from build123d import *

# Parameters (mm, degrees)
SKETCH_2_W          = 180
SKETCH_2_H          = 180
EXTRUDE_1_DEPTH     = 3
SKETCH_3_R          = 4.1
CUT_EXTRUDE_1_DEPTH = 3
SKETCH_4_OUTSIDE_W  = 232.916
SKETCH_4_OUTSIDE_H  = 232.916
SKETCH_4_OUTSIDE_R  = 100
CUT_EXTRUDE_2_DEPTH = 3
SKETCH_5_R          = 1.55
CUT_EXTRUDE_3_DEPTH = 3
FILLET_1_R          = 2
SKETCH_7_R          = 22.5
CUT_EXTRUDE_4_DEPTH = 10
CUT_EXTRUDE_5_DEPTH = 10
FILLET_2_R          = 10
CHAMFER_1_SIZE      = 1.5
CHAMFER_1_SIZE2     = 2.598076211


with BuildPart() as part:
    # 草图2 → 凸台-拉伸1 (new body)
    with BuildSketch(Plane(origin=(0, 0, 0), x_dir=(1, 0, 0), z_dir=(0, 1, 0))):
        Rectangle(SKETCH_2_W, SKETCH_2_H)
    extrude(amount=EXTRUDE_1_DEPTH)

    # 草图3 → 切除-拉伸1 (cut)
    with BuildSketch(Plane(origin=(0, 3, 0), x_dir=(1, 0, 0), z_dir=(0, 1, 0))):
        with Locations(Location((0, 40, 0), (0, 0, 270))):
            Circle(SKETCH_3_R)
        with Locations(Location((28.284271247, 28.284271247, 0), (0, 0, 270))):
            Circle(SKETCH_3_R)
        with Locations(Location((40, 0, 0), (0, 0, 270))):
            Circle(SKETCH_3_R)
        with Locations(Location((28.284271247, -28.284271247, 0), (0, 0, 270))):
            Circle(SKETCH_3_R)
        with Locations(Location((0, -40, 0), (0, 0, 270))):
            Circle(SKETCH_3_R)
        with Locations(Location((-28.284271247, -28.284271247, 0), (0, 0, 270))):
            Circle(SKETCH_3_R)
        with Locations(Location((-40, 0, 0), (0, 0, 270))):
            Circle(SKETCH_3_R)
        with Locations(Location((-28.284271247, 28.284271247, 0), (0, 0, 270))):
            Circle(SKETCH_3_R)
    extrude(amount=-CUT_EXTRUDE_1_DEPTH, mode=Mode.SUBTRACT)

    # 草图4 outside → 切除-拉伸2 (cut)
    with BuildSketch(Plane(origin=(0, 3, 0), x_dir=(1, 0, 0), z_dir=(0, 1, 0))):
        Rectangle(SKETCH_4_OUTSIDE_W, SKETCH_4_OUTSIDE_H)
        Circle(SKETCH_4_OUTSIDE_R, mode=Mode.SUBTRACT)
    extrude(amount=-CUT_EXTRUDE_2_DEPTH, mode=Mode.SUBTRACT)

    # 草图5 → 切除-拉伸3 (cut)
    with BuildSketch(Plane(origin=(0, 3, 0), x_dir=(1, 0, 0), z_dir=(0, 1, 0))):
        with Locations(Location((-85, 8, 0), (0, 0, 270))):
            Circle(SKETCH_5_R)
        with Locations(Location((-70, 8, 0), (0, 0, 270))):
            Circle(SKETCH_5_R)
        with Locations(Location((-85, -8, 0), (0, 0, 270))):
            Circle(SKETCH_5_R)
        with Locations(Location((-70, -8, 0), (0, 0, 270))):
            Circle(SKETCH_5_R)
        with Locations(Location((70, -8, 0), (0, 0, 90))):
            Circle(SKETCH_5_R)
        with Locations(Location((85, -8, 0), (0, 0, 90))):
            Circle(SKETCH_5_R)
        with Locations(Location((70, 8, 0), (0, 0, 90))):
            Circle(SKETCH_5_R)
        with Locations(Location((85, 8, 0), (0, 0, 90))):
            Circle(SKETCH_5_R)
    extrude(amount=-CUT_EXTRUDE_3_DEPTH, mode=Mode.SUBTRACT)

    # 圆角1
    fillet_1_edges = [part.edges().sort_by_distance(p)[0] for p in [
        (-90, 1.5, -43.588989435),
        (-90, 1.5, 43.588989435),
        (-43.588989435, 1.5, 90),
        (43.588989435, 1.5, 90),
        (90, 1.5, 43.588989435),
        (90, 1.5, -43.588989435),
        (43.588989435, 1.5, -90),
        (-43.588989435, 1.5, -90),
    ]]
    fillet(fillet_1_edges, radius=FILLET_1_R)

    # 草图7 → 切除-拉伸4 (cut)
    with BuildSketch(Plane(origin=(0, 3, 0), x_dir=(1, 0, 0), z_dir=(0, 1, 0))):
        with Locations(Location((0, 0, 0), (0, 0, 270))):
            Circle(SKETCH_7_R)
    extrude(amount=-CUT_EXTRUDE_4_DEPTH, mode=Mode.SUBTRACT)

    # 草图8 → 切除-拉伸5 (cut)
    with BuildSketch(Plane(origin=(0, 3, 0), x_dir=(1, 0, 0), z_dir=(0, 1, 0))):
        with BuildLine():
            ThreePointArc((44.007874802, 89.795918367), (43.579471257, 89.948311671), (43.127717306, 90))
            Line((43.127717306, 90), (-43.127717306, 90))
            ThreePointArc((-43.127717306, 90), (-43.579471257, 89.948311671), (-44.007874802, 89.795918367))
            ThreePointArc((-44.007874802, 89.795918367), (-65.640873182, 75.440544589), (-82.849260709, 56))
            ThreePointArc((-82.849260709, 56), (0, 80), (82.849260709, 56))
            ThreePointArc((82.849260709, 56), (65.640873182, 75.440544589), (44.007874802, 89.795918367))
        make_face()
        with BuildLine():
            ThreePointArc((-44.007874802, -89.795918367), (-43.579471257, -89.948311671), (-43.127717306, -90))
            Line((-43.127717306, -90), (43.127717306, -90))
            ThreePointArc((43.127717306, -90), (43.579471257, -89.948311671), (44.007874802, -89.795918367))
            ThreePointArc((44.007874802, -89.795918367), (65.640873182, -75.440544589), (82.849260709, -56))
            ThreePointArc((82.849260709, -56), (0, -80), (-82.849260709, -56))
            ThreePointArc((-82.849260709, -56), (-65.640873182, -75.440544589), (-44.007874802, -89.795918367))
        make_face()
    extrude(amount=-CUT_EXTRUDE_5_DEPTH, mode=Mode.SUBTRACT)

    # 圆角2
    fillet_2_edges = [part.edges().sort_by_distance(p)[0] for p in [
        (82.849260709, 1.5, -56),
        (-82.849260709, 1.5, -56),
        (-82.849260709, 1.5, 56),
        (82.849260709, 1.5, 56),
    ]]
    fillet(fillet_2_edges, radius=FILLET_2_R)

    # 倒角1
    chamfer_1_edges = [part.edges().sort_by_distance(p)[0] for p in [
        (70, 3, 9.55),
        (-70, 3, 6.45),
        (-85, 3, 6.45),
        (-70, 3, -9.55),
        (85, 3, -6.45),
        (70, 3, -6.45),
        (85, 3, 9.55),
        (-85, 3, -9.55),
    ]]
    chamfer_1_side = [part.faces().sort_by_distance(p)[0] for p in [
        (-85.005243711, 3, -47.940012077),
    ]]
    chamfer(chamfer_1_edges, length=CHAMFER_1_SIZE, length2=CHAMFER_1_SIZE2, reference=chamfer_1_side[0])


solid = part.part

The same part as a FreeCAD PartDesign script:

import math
import FreeCAD as App
import Part
import Sketcher

V = App.Vector
Q = App.Units.Quantity


def edges_at(feature, points):
    """Names of the edges that pass closest to the given points."""
    edges = feature.Shape.Edges
    near = lambda p: min(range(len(edges)), key=lambda i: edges[i].distToShape(Part.Vertex(*p))[0])
    return sorted({f"Edge{near(p) + 1}" for p in points})

doc = App.newDocument("Part")
body = doc.addObject("PartDesign::Body", "Body")

# Sketch on XZ plane
sketch1 = body.newObject("Sketcher::SketchObject", "Sketch")
sketch1.AttachmentSupport = (doc.getObject("XZ_Plane"), [""])
sketch1.MapMode = "FlatFace"
sketch1.addGeometry([
    Part.LineSegment(V(-90, -90, 0), V(-90, 90, 0)),
    Part.LineSegment(V(-90, 90, 0), V(90, 90, 0)),
    Part.LineSegment(V(90, 90, 0), V(90, -90, 0)),
    Part.LineSegment(V(90, -90, 0), V(-90, -90, 0)),
], False)
sketch1.addConstraint([
    Sketcher.Constraint("Coincident", 0, 2, 1, 1),
    Sketcher.Constraint("Coincident", 1, 2, 2, 1),
    Sketcher.Constraint("Coincident", 2, 2, 3, 1),
    Sketcher.Constraint("Coincident", 3, 2, 0, 1),
    Sketcher.Constraint("Vertical", 0),
    Sketcher.Constraint("Horizontal", 1),
    Sketcher.Constraint("Vertical", 2),
    Sketcher.Constraint("Horizontal", 3),
    Sketcher.Constraint("Symmetric", 0, 2, 2, 2, -1, 1),
    Sketcher.Constraint("Equal", 3, 0),
    Sketcher.Constraint("DistanceX", 1, 1, 1, 2, Q("180 mm")),
])
pad1 = body.newObject("PartDesign::Pad", "Pad")
pad1.Profile = sketch1
pad1.Length = 3
pad1.Reversed = True

# Sketch on XZ plane
sketch2 = body.newObject("Sketcher::SketchObject", "Sketch001")
sketch2.AttachmentSupport = (doc.getObject("XZ_Plane"), [""])
sketch2.MapMode = "FlatFace"
sketch2.AttachmentOffset = App.Placement(V(0, 0, -3), App.Rotation())
sketch2.addGeometry([
    Part.Circle(V(0, -40, 0), V(0, 0, 1), 4.1),  # 0
    Part.Circle(V(28.3, -28.3, 0), V(0, 0, 1), 4.1),  # 1
    Part.Circle(V(40, 0, 0), V(0, 0, 1), 4.1),  # 2
    Part.Circle(V(28.3, 28.3, 0), V(0, 0, 1), 4.1),  # 3
    Part.Circle(V(0, 40, 0), V(0, 0, 1), 4.1),  # 4
    Part.Circle(V(-28.3, 28.3, 0), V(0, 0, 1), 4.1),  # 5
    Part.Circle(V(-40, 0, 0), V(0, 0, 1), 4.1),  # 6
    Part.Circle(V(-28.3, -28.3, 0), V(0, 0, 1), 4.1),  # 7
], False)
sketch2.addConstraint([
    Sketcher.Constraint("Equal", 0, 1),
    Sketcher.Constraint("Equal", 1, 2),
    Sketcher.Constraint("Equal", 2, 3),
    Sketcher.Constraint("Equal", 3, 4),
    Sketcher.Constraint("Equal", 4, 5),
    Sketcher.Constraint("Equal", 5, 6),
    Sketcher.Constraint("Equal", 6, 7),
    Sketcher.Constraint("Symmetric", 0, 3, 4, 3, -1, 1),
    Sketcher.Constraint("Symmetric", 1, 3, 5, 3, -1, 1),
    Sketcher.Constraint("Symmetric", 2, 3, 6, 3, -1, 1),
    Sketcher.Constraint("Symmetric", 3, 3, 7, 3, -1, 1),
    Sketcher.Constraint("Symmetric", 3, 3, 5, 3, -2),
    Sketcher.Constraint("PointOnObject", 0, 3, -2),
    Sketcher.Constraint("PointOnObject", 2, 3, -1),
    Sketcher.Constraint("Diameter", 0, Q("8.2 mm")),
    Sketcher.Constraint("DistanceY", 0, 3, -1, 1, Q("40 mm")),
    Sketcher.Constraint("DistanceX", -1, 1, 2, 3, Q("40 mm")),
    Sketcher.Constraint("DistanceX", -1, 1, 1, 3, Q("28.284271 mm")),
    Sketcher.Constraint("DistanceY", 1, 3, -1, 1, Q("28.284271 mm")),
])
pocket1 = body.newObject("PartDesign::Pocket", "Pocket")
pocket1.Profile = sketch2
pocket1.Length = 3
pocket1.Reversed = True

# Sketch on XZ plane
sketch3 = body.newObject("Sketcher::SketchObject", "Sketch002")
sketch3.AttachmentSupport = (doc.getObject("XZ_Plane"), [""])
sketch3.MapMode = "FlatFace"
sketch3.AttachmentOffset = App.Placement(V(0, 0, -3), App.Rotation())
sketch3.addGeometry([
    Part.LineSegment(V(-116, -116, 0), V(-116, 116, 0)),  # 0
    Part.LineSegment(V(-116, 116, 0), V(116, 116, 0)),  # 1
    Part.LineSegment(V(116, 116, 0), V(116, -116, 0)),  # 2
    Part.LineSegment(V(116, -116, 0), V(-116, -116, 0)),  # 3
    Part.Circle(V(0, 0, 0), V(0, 0, 1), 100),  # 4
], False)
sketch3.addConstraint([
    Sketcher.Constraint("Coincident", 0, 2, 1, 1),
    Sketcher.Constraint("Coincident", 1, 2, 2, 1),
    Sketcher.Constraint("Coincident", 2, 2, 3, 1),
    Sketcher.Constraint("Coincident", 3, 2, 0, 1),
    Sketcher.Constraint("Vertical", 0),
    Sketcher.Constraint("Horizontal", 1),
    Sketcher.Constraint("Vertical", 2),
    Sketcher.Constraint("Horizontal", 3),
    Sketcher.Constraint("Coincident", 4, 3, -1, 1),
    Sketcher.Constraint("Symmetric", 0, 2, 2, 2, -1, 1),
    Sketcher.Constraint("Equal", 3, 0),
    Sketcher.Constraint("Diameter", 4, Q("200 mm")),
    Sketcher.Constraint("DistanceX", 1, 1, 1, 2, Q("232.916 mm")),
])
pocket2 = body.newObject("PartDesign::Pocket", "Pocket001")
pocket2.Profile = sketch3
pocket2.Length = 3
pocket2.Reversed = True

# Sketch on XZ plane
sketch4 = body.newObject("Sketcher::SketchObject", "Sketch003")
sketch4.AttachmentSupport = (doc.getObject("XZ_Plane"), [""])
sketch4.MapMode = "FlatFace"
sketch4.AttachmentOffset = App.Placement(V(0, 0, -3), App.Rotation())
sketch4.addGeometry([
    Part.Circle(V(-85, -8, 0), V(0, 0, 1), 1.6),  # 0
    Part.Circle(V(-70, -8, 0), V(0, 0, 1), 1.6),  # 1
    Part.Circle(V(-85, 8, 0), V(0, 0, 1), 1.6),  # 2
    Part.Circle(V(-70, 8, 0), V(0, 0, 1), 1.6),  # 3
    Part.Circle(V(70, 8, 0), V(0, 0, 1), 1.6),  # 4
    Part.Circle(V(85, 8, 0), V(0, 0, 1), 1.6),  # 5
    Part.Circle(V(70, -8, 0), V(0, 0, 1), 1.6),  # 6
    Part.Circle(V(85, -8, 0), V(0, 0, 1), 1.6),  # 7
], False)
sketch4.addConstraint([
    Sketcher.Constraint("Equal", 0, 1),
    Sketcher.Constraint("Equal", 1, 2),
    Sketcher.Constraint("Equal", 2, 3),
    Sketcher.Constraint("Equal", 3, 4),
    Sketcher.Constraint("Equal", 4, 5),
    Sketcher.Constraint("Equal", 5, 6),
    Sketcher.Constraint("Equal", 6, 7),
    Sketcher.Constraint("Symmetric", 1, 3, 4, 3, -1, 1),
    Sketcher.Constraint("Symmetric", 0, 3, 5, 3, -1, 1),
    Sketcher.Constraint("Symmetric", 3, 3, 6, 3, -1, 1),
    Sketcher.Constraint("Symmetric", 2, 3, 7, 3, -1, 1),
    Sketcher.Constraint("Symmetric", 3, 3, 4, 3, -2),
    Sketcher.Constraint("Symmetric", 2, 3, 5, 3, -2),
    Sketcher.Constraint("Horizontal", 0, 3, 1, 3),
    Sketcher.Constraint("Diameter", 0, Q("3.1 mm")),
    Sketcher.Constraint("DistanceX", 0, 3, -1, 1, Q("85 mm")),
    Sketcher.Constraint("DistanceY", 0, 3, -1, 1, Q("8 mm")),
    Sketcher.Constraint("DistanceX", 1, 3, -1, 1, Q("70 mm")),
])
pocket3 = body.newObject("PartDesign::Pocket", "Pocket002")
pocket3.Profile = sketch4
pocket3.Length = 3
pocket3.Reversed = True
doc.recompute()

fillet = body.newObject("PartDesign::Fillet", "Fillet")
fillet.Base = (pocket3, edges_at(pocket3, [
    (-90, 1.5, -43.589),
    (-90, 1.5, 43.589),
    (-43.589, 1.5, 90),
    (43.589, 1.5, 90),
    (90, 1.5, 43.589),
    (90, 1.5, -43.589),
    (43.589, 1.5, -90),
    (-43.589, 1.5, -90),
]))
fillet.Radius = 2

# Sketch on XZ plane
sketch5 = body.newObject("Sketcher::SketchObject", "Sketch004")
sketch5.AttachmentSupport = (doc.getObject("XZ_Plane"), [""])
sketch5.MapMode = "FlatFace"
sketch5.AttachmentOffset = App.Placement(V(0, 0, -3), App.Rotation())
sketch5.addGeometry(Part.Circle(V(0, 0, 0), V(0, 0, 1), 22), False)
sketch5.addConstraint([
    Sketcher.Constraint("Coincident", 0, 3, -1, 1),
    Sketcher.Constraint("Diameter", 0, Q("45 mm")),
])
pocket4 = body.newObject("PartDesign::Pocket", "Pocket003")
pocket4.Profile = sketch5
pocket4.Length = 10
pocket4.Reversed = True

# Sketch on XZ plane
sketch6 = body.newObject("Sketcher::SketchObject", "Sketch005")
sketch6.AttachmentSupport = (doc.getObject("XZ_Plane"), [""])
sketch6.MapMode = "FlatFace"
sketch6.AttachmentOffset = App.Placement(V(0, 0, -3), App.Rotation())
sketch6.addGeometry([
    Part.ArcOfCircle(Part.Circle(V(43.1, -88, 0), V(0, 0, 1), 2), math.radians(-90), math.radians(-64)),  # 0
    Part.LineSegment(V(43.1, -90, 0), V(-43.1, -90, 0)),  # 1
    Part.ArcOfCircle(Part.Circle(V(-43.1, -88, 0), V(0, 0, 1), 2), math.radians(-116), math.radians(-90)),  # 2
    Part.ArcOfCircle(Part.Circle(V(0, 0, 0), V(0, 0, 1), 100), math.radians(-146), math.radians(-116)),  # 3
    Part.ArcOfCircle(Part.Circle(V(0, 75, 0), V(0, 0, 1), 155), math.radians(-122), math.radians(-58)),  # 4
    Part.ArcOfCircle(Part.Circle(V(0, 0, 0), V(0, 0, 1), 100), math.radians(-64), math.radians(-34)),  # 5
    Part.ArcOfCircle(Part.Circle(V(-43.1, 88, 0), V(0, 0, 1), 2), math.radians(90), math.radians(116)),  # 6
    Part.LineSegment(V(-43.1, 90, 0), V(43.1, 90, 0)),  # 7
    Part.ArcOfCircle(Part.Circle(V(43.1, 88, 0), V(0, 0, 1), 2), math.radians(64), math.radians(90)),  # 8
    Part.ArcOfCircle(Part.Circle(V(0, 0, 0), V(0, 0, 1), 100), math.radians(34), math.radians(64)),  # 9
    Part.ArcOfCircle(Part.Circle(V(0, -75, 0), V(0, 0, 1), 155), math.radians(58), math.radians(122)),  # 10
    Part.ArcOfCircle(Part.Circle(V(0, 0, 0), V(0, 0, 1), 100), math.radians(116), math.radians(146)),  # 11
], False)
sketch6.addConstraint([
    Sketcher.Constraint("Tangent", 0, 1, 1, 1),
    Sketcher.Constraint("Tangent", 1, 2, 2, 2),
    Sketcher.Constraint("Tangent", 2, 1, 3, 2),
    Sketcher.Constraint("Coincident", 3, 1, 4, 1),
    Sketcher.Constraint("Coincident", 4, 2, 5, 2),
    Sketcher.Constraint("Tangent", 5, 1, 0, 2),
    Sketcher.Constraint("Tangent", 6, 1, 7, 1),
    Sketcher.Constraint("Tangent", 7, 2, 8, 2),
    Sketcher.Constraint("Tangent", 8, 1, 9, 2),
    Sketcher.Constraint("Coincident", 9, 1, 10, 1),
    Sketcher.Constraint("Coincident", 10, 2, 11, 2),
    Sketcher.Constraint("Tangent", 11, 1, 6, 2),
    Sketcher.Constraint("Horizontal", 1),
    Sketcher.Constraint("Horizontal", 7),
    Sketcher.Constraint("Coincident", 3, 3, -1, 1),
    Sketcher.Constraint("Coincident", 5, 3, -1, 1),
    Sketcher.Constraint("Coincident", 9, 3, -1, 1),
    Sketcher.Constraint("Coincident", 11, 3, -1, 1),
    Sketcher.Constraint("Equal", 0, 2),
    Sketcher.Constraint("Equal", 3, 5),
    Sketcher.Constraint("Equal", 2, 6),
    Sketcher.Constraint("Equal", 6, 8),
    Sketcher.Constraint("Equal", 5, 9),
    Sketcher.Constraint("Equal", 4, 10),
    Sketcher.Constraint("Equal", 9, 11),
    Sketcher.Constraint("Symmetric", 4, 3, 10, 3, -1, 1),
    Sketcher.Constraint("PointOnObject", 4, 3, -2),
    Sketcher.Constraint("Vertical", 2, 3, 6, 3),
    Sketcher.Constraint("Radius", 0, Q("2 mm")),
    Sketcher.Constraint("Radius", 3, Q("100 mm")),
    Sketcher.Constraint("Radius", 4, Q("155 mm")),
    Sketcher.Constraint("DistanceY", 0, 3, -1, 1, Q("88 mm")),
    Sketcher.Constraint("DistanceY", -1, 1, 4, 3, Q("75 mm")),
])
pocket5 = body.newObject("PartDesign::Pocket", "Pocket004")
pocket5.Profile = sketch6
pocket5.Length = 10
pocket5.Reversed = True
doc.recompute()

fillet2 = body.newObject("PartDesign::Fillet", "Fillet001")
fillet2.Base = (pocket5, edges_at(pocket5, [
    (82.849, 1.5, -56),
    (-82.849, 1.5, -56),
    (-82.849, 1.5, 56),
    (82.849, 1.5, 56),
]))
fillet2.Radius = 10
doc.recompute()

chamfer = body.newObject("PartDesign::Chamfer", "Chamfer")
chamfer.Base = (fillet2, edges_at(fillet2, [
    (70, 3, 9.55),
    (-70, 3, 6.45),
    (-85, 3, 6.45),
    (-70, 3, -9.55),
    (85, 3, -6.45),
    (70, 3, -6.45),
    (85, 3, 9.55),
    (-85, 3, -9.55),
]))
chamfer.ChamferType = "Two distances"
chamfer.Size = 1.5
chamfer.Size2 = 2.598076
chamfer.FlipDirection = True

doc.recompute()
